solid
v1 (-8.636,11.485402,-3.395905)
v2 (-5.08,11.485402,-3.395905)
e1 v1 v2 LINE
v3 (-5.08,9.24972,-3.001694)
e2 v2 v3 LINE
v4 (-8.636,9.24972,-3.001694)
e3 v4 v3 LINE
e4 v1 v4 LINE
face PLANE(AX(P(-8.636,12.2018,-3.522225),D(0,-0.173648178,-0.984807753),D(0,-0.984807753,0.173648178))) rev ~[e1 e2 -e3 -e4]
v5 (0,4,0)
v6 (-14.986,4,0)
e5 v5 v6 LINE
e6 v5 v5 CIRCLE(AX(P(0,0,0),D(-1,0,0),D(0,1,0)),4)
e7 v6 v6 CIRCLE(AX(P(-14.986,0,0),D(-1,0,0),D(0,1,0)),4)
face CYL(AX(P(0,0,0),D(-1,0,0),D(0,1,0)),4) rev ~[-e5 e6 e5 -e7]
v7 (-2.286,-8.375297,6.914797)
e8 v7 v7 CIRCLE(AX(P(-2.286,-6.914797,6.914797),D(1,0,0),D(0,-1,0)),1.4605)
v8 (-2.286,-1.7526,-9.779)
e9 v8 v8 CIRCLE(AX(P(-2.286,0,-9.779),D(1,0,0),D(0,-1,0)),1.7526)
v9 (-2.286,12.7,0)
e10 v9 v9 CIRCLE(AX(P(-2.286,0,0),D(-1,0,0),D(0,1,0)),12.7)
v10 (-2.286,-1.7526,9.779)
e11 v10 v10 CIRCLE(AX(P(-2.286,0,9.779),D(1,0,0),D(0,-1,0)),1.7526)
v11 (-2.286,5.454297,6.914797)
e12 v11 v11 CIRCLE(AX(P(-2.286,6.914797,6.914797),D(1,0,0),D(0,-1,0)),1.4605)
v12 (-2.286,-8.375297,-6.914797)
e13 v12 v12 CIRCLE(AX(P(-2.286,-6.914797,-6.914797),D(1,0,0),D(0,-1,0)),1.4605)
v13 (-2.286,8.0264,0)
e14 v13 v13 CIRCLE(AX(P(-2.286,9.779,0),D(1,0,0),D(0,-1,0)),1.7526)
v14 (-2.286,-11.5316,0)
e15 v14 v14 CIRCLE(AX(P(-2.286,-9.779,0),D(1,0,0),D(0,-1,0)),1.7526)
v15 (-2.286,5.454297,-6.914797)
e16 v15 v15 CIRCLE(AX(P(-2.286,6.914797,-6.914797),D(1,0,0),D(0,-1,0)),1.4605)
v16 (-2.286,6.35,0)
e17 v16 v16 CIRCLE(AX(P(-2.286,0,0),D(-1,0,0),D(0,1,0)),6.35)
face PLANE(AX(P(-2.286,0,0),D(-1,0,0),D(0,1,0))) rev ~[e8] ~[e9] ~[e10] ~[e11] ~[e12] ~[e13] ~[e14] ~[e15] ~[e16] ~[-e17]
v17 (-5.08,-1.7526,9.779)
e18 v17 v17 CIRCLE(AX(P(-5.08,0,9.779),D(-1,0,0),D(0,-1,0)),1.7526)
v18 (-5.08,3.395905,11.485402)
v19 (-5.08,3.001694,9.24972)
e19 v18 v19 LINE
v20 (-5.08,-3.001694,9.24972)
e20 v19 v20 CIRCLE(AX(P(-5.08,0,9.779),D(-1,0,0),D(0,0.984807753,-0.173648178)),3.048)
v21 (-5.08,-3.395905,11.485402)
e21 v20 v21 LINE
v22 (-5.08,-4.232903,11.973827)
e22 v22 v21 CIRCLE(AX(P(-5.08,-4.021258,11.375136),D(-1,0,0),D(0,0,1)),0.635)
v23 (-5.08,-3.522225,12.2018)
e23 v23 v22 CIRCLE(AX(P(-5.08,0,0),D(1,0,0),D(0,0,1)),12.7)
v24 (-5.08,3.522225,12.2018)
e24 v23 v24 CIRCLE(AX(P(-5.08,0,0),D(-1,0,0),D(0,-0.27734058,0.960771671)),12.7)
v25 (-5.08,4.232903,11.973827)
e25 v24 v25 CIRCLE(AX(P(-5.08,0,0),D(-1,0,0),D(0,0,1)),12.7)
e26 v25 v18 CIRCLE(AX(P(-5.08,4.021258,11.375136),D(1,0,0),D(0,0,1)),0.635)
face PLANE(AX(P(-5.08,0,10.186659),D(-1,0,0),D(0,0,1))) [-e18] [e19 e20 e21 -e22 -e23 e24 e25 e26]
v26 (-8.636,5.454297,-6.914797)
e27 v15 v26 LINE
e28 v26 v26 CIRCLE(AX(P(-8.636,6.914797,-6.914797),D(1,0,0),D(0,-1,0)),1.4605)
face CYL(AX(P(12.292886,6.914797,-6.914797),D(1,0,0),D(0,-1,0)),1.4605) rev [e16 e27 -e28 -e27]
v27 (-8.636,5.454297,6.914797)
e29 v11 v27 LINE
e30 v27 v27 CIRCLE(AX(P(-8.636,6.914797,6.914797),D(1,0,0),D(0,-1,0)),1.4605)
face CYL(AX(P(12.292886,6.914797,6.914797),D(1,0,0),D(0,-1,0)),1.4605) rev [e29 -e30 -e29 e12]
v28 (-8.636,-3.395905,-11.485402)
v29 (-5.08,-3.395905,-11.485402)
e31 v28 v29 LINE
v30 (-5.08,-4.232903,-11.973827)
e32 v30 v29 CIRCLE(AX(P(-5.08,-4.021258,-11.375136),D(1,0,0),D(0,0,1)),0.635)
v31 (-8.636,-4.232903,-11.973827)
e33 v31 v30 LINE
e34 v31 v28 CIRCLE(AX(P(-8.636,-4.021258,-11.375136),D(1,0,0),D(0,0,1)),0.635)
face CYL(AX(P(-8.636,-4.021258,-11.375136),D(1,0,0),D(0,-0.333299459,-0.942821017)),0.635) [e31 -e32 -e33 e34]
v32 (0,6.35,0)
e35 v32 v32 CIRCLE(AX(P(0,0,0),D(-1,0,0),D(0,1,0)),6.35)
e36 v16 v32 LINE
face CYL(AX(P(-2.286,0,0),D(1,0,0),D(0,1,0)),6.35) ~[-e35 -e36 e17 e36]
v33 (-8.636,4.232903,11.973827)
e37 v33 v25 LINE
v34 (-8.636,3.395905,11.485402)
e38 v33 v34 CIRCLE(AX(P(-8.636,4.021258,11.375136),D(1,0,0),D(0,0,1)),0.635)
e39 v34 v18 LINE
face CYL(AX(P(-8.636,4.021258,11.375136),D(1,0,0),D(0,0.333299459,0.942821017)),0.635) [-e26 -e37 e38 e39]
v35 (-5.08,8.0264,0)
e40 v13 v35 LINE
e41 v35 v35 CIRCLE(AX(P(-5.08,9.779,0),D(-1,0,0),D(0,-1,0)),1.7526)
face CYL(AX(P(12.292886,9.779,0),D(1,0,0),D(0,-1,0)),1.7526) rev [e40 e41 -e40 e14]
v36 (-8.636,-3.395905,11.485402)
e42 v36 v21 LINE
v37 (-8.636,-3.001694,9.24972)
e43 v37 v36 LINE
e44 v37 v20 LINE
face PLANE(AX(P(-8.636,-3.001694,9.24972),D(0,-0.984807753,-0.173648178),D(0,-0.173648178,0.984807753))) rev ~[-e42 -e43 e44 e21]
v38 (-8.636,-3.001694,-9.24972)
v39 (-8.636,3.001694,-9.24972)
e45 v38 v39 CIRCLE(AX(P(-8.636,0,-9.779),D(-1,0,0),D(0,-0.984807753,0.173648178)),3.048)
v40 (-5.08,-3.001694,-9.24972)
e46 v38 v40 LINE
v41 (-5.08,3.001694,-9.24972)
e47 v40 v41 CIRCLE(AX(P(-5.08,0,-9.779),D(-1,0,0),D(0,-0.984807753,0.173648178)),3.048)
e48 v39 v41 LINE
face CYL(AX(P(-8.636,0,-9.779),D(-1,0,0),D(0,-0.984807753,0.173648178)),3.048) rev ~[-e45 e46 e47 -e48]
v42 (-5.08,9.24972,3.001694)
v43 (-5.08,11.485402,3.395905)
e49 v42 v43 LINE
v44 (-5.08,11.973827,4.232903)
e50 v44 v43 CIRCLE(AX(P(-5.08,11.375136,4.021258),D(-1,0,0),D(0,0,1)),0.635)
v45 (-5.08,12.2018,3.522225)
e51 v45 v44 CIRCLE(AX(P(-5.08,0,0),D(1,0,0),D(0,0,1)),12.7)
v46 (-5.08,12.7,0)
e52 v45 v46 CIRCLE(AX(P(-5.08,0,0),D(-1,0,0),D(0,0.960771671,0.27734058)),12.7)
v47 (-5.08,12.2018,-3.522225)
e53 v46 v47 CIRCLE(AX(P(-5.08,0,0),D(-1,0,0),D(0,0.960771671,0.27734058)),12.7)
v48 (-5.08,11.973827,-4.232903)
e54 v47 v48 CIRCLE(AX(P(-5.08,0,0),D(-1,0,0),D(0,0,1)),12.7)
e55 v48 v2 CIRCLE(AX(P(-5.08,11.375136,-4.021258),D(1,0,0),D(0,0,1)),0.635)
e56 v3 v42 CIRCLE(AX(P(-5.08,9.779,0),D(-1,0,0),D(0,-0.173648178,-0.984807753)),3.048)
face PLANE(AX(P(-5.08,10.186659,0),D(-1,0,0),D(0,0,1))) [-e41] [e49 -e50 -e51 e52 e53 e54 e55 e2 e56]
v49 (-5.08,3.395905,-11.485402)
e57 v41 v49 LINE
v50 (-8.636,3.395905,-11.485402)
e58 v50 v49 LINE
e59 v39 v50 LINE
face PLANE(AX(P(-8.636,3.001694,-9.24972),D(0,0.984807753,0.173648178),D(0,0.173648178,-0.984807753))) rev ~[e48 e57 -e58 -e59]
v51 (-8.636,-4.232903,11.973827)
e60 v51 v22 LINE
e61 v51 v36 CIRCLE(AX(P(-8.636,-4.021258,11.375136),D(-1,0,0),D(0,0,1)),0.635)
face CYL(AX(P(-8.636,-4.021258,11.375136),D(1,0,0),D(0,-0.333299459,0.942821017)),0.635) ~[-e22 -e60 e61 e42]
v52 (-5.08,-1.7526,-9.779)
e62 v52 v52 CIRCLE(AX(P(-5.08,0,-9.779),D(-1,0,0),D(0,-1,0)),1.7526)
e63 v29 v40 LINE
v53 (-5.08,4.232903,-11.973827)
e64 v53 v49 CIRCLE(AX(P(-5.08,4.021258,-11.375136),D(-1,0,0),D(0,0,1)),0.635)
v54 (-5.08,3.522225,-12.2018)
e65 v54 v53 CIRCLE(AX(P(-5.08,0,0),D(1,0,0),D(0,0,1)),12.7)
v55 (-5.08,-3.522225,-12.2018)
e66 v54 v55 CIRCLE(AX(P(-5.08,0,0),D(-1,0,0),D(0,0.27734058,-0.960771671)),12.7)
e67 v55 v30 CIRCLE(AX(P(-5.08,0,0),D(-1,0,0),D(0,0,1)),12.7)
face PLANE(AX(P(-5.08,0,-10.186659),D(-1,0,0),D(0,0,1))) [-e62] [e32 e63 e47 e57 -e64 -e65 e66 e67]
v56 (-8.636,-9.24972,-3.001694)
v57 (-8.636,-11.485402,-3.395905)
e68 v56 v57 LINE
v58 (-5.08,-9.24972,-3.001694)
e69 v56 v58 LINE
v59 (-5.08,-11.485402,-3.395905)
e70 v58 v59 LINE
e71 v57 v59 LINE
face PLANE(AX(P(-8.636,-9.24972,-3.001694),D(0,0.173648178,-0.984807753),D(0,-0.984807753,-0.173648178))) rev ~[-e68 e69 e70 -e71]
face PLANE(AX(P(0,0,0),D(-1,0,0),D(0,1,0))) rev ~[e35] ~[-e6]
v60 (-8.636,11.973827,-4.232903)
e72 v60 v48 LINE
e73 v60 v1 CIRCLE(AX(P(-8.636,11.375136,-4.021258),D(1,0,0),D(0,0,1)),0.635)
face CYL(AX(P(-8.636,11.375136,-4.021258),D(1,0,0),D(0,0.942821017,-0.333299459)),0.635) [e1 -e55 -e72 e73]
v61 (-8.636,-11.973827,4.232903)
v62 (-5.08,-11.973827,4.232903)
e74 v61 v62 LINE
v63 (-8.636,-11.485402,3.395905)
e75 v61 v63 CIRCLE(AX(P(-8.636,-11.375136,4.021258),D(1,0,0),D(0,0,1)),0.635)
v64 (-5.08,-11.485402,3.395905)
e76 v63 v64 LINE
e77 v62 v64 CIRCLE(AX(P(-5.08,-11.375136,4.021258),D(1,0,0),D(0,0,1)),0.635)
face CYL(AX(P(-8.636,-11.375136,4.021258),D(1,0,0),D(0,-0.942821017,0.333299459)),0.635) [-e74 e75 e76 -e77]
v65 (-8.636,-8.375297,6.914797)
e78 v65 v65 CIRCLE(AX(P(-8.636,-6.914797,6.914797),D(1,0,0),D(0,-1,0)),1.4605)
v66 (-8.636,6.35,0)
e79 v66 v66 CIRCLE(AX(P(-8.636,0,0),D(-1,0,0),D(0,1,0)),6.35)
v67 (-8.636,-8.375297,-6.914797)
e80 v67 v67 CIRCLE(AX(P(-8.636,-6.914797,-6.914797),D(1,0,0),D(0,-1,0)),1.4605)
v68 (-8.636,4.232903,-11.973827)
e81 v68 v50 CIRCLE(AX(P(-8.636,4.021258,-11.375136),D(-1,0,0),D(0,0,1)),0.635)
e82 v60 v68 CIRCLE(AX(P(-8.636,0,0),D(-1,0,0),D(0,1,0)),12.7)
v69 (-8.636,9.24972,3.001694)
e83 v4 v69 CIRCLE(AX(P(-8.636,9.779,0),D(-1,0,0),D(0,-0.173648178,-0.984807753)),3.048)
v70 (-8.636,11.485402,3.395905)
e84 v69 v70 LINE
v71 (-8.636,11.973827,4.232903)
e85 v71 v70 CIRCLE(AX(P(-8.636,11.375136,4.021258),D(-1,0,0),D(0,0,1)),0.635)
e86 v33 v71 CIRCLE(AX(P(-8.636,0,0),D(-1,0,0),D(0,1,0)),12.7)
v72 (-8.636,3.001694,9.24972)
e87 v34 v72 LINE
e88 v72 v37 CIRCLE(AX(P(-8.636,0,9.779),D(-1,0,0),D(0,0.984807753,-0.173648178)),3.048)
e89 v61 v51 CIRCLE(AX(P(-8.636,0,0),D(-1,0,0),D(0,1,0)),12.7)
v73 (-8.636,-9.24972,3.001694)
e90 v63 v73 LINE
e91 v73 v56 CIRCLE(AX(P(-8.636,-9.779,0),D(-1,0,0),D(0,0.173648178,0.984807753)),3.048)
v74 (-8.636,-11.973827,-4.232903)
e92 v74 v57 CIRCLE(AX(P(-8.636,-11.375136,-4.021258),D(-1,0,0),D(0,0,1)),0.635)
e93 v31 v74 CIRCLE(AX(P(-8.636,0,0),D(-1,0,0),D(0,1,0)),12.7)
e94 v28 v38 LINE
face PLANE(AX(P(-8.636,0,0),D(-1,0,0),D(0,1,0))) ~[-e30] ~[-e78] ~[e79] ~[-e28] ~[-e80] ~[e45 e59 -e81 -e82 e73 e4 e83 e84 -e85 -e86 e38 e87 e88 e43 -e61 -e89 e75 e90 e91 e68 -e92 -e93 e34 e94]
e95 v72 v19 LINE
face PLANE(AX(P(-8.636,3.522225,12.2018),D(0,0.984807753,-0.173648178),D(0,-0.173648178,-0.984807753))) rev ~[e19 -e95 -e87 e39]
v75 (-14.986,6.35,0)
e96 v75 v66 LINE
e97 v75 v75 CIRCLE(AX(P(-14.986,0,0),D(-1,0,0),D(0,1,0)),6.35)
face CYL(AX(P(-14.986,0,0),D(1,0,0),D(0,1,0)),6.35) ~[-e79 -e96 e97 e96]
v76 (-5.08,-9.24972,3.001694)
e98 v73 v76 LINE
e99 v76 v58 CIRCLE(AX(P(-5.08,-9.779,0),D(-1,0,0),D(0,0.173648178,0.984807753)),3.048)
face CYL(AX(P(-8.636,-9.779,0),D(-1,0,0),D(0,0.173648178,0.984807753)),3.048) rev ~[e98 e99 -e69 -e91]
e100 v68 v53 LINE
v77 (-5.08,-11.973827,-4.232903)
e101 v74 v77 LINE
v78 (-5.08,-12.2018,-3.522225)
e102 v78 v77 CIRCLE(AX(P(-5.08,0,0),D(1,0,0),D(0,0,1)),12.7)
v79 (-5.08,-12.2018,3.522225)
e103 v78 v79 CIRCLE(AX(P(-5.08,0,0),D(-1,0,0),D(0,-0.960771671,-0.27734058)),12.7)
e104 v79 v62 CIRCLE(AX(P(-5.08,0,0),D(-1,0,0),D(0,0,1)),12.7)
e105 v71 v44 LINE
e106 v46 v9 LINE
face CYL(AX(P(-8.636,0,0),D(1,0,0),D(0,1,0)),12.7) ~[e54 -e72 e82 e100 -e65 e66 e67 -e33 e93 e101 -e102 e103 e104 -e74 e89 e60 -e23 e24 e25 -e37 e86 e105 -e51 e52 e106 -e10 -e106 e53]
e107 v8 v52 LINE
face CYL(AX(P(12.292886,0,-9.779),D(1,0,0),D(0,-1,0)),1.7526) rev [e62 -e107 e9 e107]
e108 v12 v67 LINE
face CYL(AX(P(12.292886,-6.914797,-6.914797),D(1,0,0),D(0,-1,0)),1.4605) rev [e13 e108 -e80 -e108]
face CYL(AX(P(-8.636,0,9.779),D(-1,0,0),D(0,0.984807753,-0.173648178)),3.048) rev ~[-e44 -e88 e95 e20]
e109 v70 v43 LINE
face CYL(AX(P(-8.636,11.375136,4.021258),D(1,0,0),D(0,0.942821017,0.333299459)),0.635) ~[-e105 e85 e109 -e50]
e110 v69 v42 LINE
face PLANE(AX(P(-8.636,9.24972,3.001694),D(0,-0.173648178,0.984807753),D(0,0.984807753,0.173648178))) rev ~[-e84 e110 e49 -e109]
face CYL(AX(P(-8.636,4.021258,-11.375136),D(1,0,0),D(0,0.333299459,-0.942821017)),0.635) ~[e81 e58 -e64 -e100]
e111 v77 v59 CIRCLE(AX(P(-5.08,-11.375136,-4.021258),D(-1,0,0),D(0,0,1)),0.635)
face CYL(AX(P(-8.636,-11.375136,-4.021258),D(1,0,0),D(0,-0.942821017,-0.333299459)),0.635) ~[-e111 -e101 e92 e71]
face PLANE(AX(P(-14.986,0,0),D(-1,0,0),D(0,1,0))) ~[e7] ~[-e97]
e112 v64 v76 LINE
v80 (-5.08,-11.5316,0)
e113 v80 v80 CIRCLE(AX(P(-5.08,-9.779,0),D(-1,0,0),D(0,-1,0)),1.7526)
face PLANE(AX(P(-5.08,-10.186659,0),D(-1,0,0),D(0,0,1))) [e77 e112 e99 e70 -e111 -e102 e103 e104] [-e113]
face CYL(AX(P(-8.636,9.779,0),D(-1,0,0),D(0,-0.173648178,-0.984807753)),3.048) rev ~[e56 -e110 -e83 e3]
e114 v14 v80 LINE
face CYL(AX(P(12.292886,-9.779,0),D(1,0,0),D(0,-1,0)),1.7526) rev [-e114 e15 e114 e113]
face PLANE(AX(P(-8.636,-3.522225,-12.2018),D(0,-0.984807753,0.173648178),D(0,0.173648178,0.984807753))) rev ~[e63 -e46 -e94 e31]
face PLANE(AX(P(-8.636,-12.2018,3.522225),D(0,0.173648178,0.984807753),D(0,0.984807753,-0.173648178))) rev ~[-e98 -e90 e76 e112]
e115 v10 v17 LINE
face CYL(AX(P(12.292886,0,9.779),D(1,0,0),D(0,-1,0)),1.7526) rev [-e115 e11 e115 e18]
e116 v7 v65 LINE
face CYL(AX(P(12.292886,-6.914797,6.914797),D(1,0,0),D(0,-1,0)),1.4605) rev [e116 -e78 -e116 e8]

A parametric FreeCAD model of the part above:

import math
import FreeCAD as App
import Part
import Sketcher
from FreeCAD import Vector
Q = App.Units.Quantity


def edges_at(feature, points):
    """Names of the edges that pass closest to the given points."""
    edges = feature.Shape.Edges
    near = lambda p: min(range(len(edges)), key=lambda i: edges[i].distToShape(Part.Vertex(*p))[0])
    return sorted({f"Edge{near(p) + 1}" for p in points})


def add_polygon(sketch, points):
    """Adds a closed chain of lines whose ends are joined by coincident constraints."""
    first, n = sketch.GeometryCount, len(points)
    for a, b in zip(points, points[1:] + points[:1]):
        sketch.addGeometry(Part.LineSegment(App.Vector(*a, 0), App.Vector(*b, 0)), False)
    for i in range(n):
        sketch.addConstraint(Sketcher.Constraint("Coincident", first + i, 2, first + (i + 1) % n, 1))

doc = App.newDocument("Part")
body = doc.addObject("PartDesign::Body", "Body")

# Sketch on XY plane
sketch1 = body.newObject("Sketcher::SketchObject", "Sketch")
sketch1.AttachmentSupport = (doc.getObject("XY_Plane"), [""])
sketch1.MapMode = "FlatFace"
add_polygon(sketch1, [(-8.636, 6.35), (-14.986, 6.35), (-14.986, 4), (0, 4), (0, 6.35), (-2.286, 6.35), (-2.286, 12.7), (-8.636, 12.7)])  # lines 0-7
sketch1.addConstraint([
    Sketcher.Constraint("Horizontal", 0),
    Sketcher.Constraint("Vertical", 1),
    Sketcher.Constraint("Horizontal", 2),
    Sketcher.Constraint("Vertical", 3),
    Sketcher.Constraint("Horizontal", 4),
    Sketcher.Constraint("Vertical", 5),
    Sketcher.Constraint("Horizontal", 6),
    Sketcher.Constraint("Vertical", 7),
    Sketcher.Constraint("PointOnObject", 2, 2, -2),
    Sketcher.Constraint("Horizontal", 0, 2, 3, 2),
    Sketcher.Constraint("Equal", 0, 6),
    Sketcher.Constraint("Equal", 6, 5),
    Sketcher.Constraint("DistanceX", 0, 2, 0, 1, Q("0.25 in")),
    Sketcher.Constraint("DistanceX", 2, 1, 2, 2, Q("0.59 in")),
    Sketcher.Constraint("DistanceY", -1, 1, 5, 2, Q("0.5 in")),
    Sketcher.Constraint("DistanceY", 1, 2, 1, 1, 2.35),
])
revolution = body.newObject("PartDesign::Revolution", "Revolution")
revolution.Profile = sketch1
revolution.ReferenceAxis = (sketch1, ["H_Axis"])
revolution.Angle = 360

# Sketch on YZ plane
sketch2 = body.newObject("Sketcher::SketchObject", "Sketch001")
sketch2.AttachmentSupport = (doc.getObject("YZ_Plane"), [""])
sketch2.MapMode = "FlatFace"
sketch2.AttachmentOffset = App.Placement(Vector(0, 0, -0.34 * 25.4), App.Rotation())
sketch2.addGeometry([
    Part.Circle(Vector(0, -9.779, 0), Vector(0, 0, 1), 1.7526),  # 0
    Part.Circle(Vector(9.779, 0, 0), Vector(0, 0, 1), 1.7526),  # 1
    Part.Circle(Vector(0, 9.779, 0), Vector(0, 0, 1), 1.7526),  # 2
    Part.Circle(Vector(-9.779, 0, 0), Vector(0, 0, 1), 1.7526),  # 3
    Part.Circle(Vector(6.914797, -6.914797, 0), Vector(0, 0, 1), 1.4605),  # 4
    Part.Circle(Vector(6.914797, 6.914797, 0), Vector(0, 0, 1), 1.4605),  # 5
    Part.Circle(Vector(-6.914797, 6.914797, 0), Vector(0, 0, 1), 1.4605),  # 6
    Part.Circle(Vector(-6.914797, -6.914797, 0), Vector(0, 0, 1), 1.4605),  # 7
], False)
sketch2.addConstraint([
    Sketcher.Constraint("Equal", 0, 1),
    Sketcher.Constraint("Equal", 1, 2),
    Sketcher.Constraint("Equal", 2, 3),
    Sketcher.Constraint("Equal", 4, 5),
    Sketcher.Constraint("Equal", 5, 6),
    Sketcher.Constraint("Equal", 6, 7),
    Sketcher.Constraint("Symmetric", 0, 3, 2, 3, -1, 1),
    Sketcher.Constraint("Symmetric", 1, 3, 3, 3, -1, 1),
    Sketcher.Constraint("Symmetric", 4, 3, 6, 3, -1, 1),
    Sketcher.Constraint("Symmetric", 5, 3, 7, 3, -1, 1),
    Sketcher.Constraint("Symmetric", 5, 3, 6, 3, -2),
    Sketcher.Constraint("PointOnObject", 0, 3, -2),
    Sketcher.Constraint("PointOnObject", 1, 3, -1),
    Sketcher.Constraint("Diameter", 0, Q("0.138 in")),
    Sketcher.Constraint("Diameter", 4, Q("0.115 in")),
    Sketcher.Constraint("DistanceY", 0, 3, 2, 3, Q("0.77 in")),
    Sketcher.Constraint("DistanceX", 3, 3, 1, 3, Q("0.77 in")),
    Sketcher.Constraint("DistanceX", -1, 1, 4, 3, 6.914797),
    Sketcher.Constraint("DistanceY", 4, 3, -1, 1, 6.914797),
])
pocket1 = body.newObject("PartDesign::Pocket", "Pocket")
pocket1.Profile = sketch2
pocket1.Type = "ThroughAll"
pocket1.Midplane = True

# Sketch on YZ plane
sketch3 = body.newObject("Sketcher::SketchObject", "Sketch002")
sketch3.AttachmentSupport = (doc.getObject("YZ_Plane"), [""])
sketch3.MapMode = "FlatFace"
sketch3.AttachmentOffset = App.Placement(Vector(0, 0, -0.34 * 25.4), App.Rotation())
sketch3.addGeometry([
    Part.LineSegment(Vector(-3.522225, -12.2018, 0), Vector(-3.001694, -9.24972, 0)),  # 0
    Part.ArcOfCircle(Part.Circle(Vector(0, -9.779, 0), Vector(0, 0, 1), 3.048), math.radians(10), math.radians(170)),  # 1
    Part.LineSegment(Vector(3.001694, -9.24972, 0), Vector(3.522225, -12.2018, 0)),  # 2
    Part.ArcOfCircle(Part.Circle(Vector(0, 0, 0), Vector(0, 0, 1), 12.7), math.radians(-106.101546), math.radians(-73.898454)),  # 3
    Part.Circle(Vector(0, -9.779, 0), Vector(0, 0, 1), 1.7526),  # 4
    Part.LineSegment(Vector(-9.24972, -3.001694, 0), Vector(-12.2018, -3.522225, 0)),  # 5
    Part.ArcOfCircle(Part.Circle(Vector(0, 0, 0), Vector(0, 0, 1), 12.7), math.radians(163.898454), math.radians(196.101546)),  # 6
    Part.LineSegment(Vector(-12.2018, 3.522225, 0), Vector(-9.24972, 3.001694, 0)),  # 7
    Part.ArcOfCircle(Part.Circle(Vector(-9.779, 0, 0), Vector(0, 0, 1), 3.048), math.radians(-80), math.radians(80)),  # 8
    Part.Circle(Vector(-9.779, 0, 0), Vector(0, 0, 1), 1.7526),  # 9
    Part.ArcOfCircle(Part.Circle(Vector(0, 0, 0), Vector(0, 0, 1), 12.7), math.radians(-16.101546), math.radians(16.101546)),  # 10
    Part.LineSegment(Vector(12.2018, -3.522225, 0), Vector(9.24972, -3.001694, 0)),  # 11
    Part.ArcOfCircle(Part.Circle(Vector(9.779, 0, 0), Vector(0, 0, 1), 3.048), math.radians(100), math.radians(260)),  # 12
    Part.LineSegment(Vector(9.24972, 3.001694, 0), Vector(12.2018, 3.522225, 0)),  # 13
    Part.Circle(Vector(9.779, 0, 0), Vector(0, 0, 1), 1.7526),  # 14
    Part.LineSegment(Vector(-3.001694, 9.24972, 0), Vector(-3.522225, 12.2018, 0)),  # 15
    Part.ArcOfCircle(Part.Circle(Vector(0, 0, 0), Vector(0, 0, 1), 12.7), math.radians(73.898454), math.radians(106.101546)),  # 16
    Part.LineSegment(Vector(3.522225, 12.2018, 0), Vector(3.001694, 9.24972, 0)),  # 17
    Part.ArcOfCircle(Part.Circle(Vector(0, 9.779, 0), Vector(0, 0, 1), 3.048), math.radians(-170), math.radians(-10)),  # 18
    Part.Circle(Vector(0, 9.779, 0), Vector(0, 0, 1), 1.7526),  # 19
], False)
sketch3.addConstraint([
    Sketcher.Constraint("Tangent", 0, 2, 1, 2),
    Sketcher.Constraint("Tangent", 1, 1, 2, 1),
    Sketcher.Constraint("Coincident", 2, 2, 3, 2),
    Sketcher.Constraint("Coincident", 3, 1, 0, 1),
    Sketcher.Constraint("Coincident", 5, 2, 6, 2),
    Sketcher.Constraint("Coincident", 6, 1, 7, 1),
    Sketcher.Constraint("Tangent", 7, 2, 8, 2),
    Sketcher.Constraint("Tangent", 8, 1, 5, 1),
    Sketcher.Constraint("Coincident", 10, 1, 11, 1),
    Sketcher.Constraint("Tangent", 11, 2, 12, 2),
    Sketcher.Constraint("Tangent", 12, 1, 13, 1),
    Sketcher.Constraint("Coincident", 13, 2, 10, 2),
    Sketcher.Constraint("Coincident", 15, 2, 16, 2),
    Sketcher.Constraint("Coincident", 16, 1, 17, 1),
    Sketcher.Constraint("Tangent", 17, 2, 18, 2),
    Sketcher.Constraint("Tangent", 18, 1, 15, 1),
    Sketcher.Constraint("Coincident", 3, 3, -1, 1),
    Sketcher.Constraint("Coincident", 6, 3, -1, 1),
    Sketcher.Constraint("Coincident", 10, 3, -1, 1),
    Sketcher.Constraint("Coincident", 16, 3, -1, 1),
    Sketcher.Constraint("Coincident", 4, 3, 1, 3),
    Sketcher.Constraint("Coincident", 9, 3, 8, 3),
    Sketcher.Constraint("Coincident", 14, 3, 12, 3),
    Sketcher.Constraint("Coincident", 19, 3, 18, 3),
    Sketcher.Constraint("Equal", 3, 6),
    Sketcher.Constraint("Equal", 1, 8),
    Sketcher.Constraint("Equal", 4, 9),
    Sketcher.Constraint("Equal", 6, 10),
    Sketcher.Constraint("Equal", 8, 12),
    Sketcher.Constraint("Equal", 9, 14),
    Sketcher.Constraint("Equal", 10, 16),
    Sketcher.Constraint("Equal", 12, 18),
    Sketcher.Constraint("Equal", 14, 19),
    Sketcher.Constraint("Symmetric", 8, 3, 12, 3, -1, 1),
    Sketcher.Constraint("Symmetric", 1, 3, 18, 3, -1, 1),
    Sketcher.Constraint("Symmetric", 0, 2, 1, 1, -2),
    Sketcher.Constraint("Symmetric", 8, 1, 11, 2, -2),
    Sketcher.Constraint("Perpendicular", 2, 5),
    Sketcher.Constraint("Perpendicular", 0, 7),
    Sketcher.Constraint("Parallel", 5, 13),
    Sketcher.Constraint("Perpendicular", 13, 15),
    Sketcher.Constraint("Perpendicular", 11, 17),
    Sketcher.Constraint("Equal", 2, 5),
    Sketcher.Constraint("Radius", 3, Q("0.5 in")),
    Sketcher.Constraint("Radius", 1, Q("0.12 in")),
    Sketcher.Constraint("Diameter", 4, Q("0.138 in")),
    Sketcher.Constraint("Angle", 0, Q("80 deg")),
    Sketcher.Constraint("DistanceY", 1, 3, -1, 1, Q("0.385 in")),
])
pocket2 = body.newObject("PartDesign::Pocket", "Pocket001")
pocket2.Profile = sketch3
pocket2.Length = Q("0.14 in")
pocket2.Reversed = True
doc.recompute()

fillet = body.newObject("PartDesign::Fillet", "Fillet")
fillet.Base = (pocket2, edges_at(pocket2, [
    (-6.858, 12.202, -3.522),
    (-6.858, 12.202, 3.522),
    (-6.858, -3.522, -12.202),
    (-6.858, 3.522, -12.202),
    (-6.858, -12.202, 3.522),
    (-6.858, -12.202, -3.522),
    (-6.858, 3.522, 12.202),
    (-6.858, -3.522, 12.202),
]))
fillet.Radius = Q("0.025 in")

doc.recompute()
